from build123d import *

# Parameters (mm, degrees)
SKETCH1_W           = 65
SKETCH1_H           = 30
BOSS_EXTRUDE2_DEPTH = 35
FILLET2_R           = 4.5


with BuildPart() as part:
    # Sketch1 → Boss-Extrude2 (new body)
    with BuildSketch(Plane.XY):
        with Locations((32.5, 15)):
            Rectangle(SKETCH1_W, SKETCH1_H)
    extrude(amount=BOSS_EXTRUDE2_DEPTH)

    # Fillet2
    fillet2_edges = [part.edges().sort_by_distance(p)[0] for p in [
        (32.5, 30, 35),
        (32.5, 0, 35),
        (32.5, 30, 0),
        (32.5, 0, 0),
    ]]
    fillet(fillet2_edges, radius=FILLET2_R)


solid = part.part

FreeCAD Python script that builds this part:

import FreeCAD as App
import Part
import Sketcher
Q = App.Units.Quantity


def edges_at(feature, points):
    """Names of the edges that pass closest to the given points."""
    edges = feature.Shape.Edges
    near = lambda p: min(range(len(edges)), key=lambda i: edges[i].distToShape(Part.Vertex(*p))[0])
    return sorted({f"Edge{near(p) + 1}" for p in points})


def add_polygon(sketch, points):
    """Adds a closed chain of lines whose ends are joined by coincident constraints."""
    first, n = sketch.GeometryCount, len(points)
    for a, b in zip(points, points[1:] + points[:1]):
        sketch.addGeometry(Part.LineSegment(App.Vector(*a, 0), App.Vector(*b, 0)), False)
    for i in range(n):
        sketch.addConstraint(Sketcher.Constraint("Coincident", first + i, 2, first + (i + 1) % n, 1))

doc = App.newDocument("Part")
body = doc.addObject("PartDesign::Body", "Body")

# Sketch on XY plane
sketch1 = body.newObject("Sketcher::SketchObject", "Sketch")
sketch1.AttachmentSupport = (doc.getObject("XY_Plane"), [""])
sketch1.MapMode = "FlatFace"
add_polygon(sketch1, [(0, 30), (0, 0), (65, 0), (65, 30)])  # lines 0-3
sketch1.addConstraint([
    Sketcher.Constraint("Vertical", 0),
    Sketcher.Constraint("Horizontal", 1),
    Sketcher.Constraint("Vertical", 2),
    Sketcher.Constraint("Horizontal", 3),
    Sketcher.Constraint("Coincident", 0, 2, -1, 1),
    Sketcher.Constraint("DistanceX", 1, 1, 1, 2, Q("65 mm")),
    Sketcher.Constraint("DistanceY", 0, 2, 0, 1, Q("30 mm")),
])
pad1 = body.newObject("PartDesign::Pad", "Pad")
pad1.Profile = sketch1
pad1.Length = 35
doc.recompute()

fillet = body.newObject("PartDesign::Fillet", "Fillet")
fillet.Base = (pad1, edges_at(pad1, [
    (32.5, 30, 35),
    (32.5, 0, 35),
    (32.5, 30, 0),
    (32.5, 0, 0),
]))
fillet.Radius = 4.5

doc.recompute()
